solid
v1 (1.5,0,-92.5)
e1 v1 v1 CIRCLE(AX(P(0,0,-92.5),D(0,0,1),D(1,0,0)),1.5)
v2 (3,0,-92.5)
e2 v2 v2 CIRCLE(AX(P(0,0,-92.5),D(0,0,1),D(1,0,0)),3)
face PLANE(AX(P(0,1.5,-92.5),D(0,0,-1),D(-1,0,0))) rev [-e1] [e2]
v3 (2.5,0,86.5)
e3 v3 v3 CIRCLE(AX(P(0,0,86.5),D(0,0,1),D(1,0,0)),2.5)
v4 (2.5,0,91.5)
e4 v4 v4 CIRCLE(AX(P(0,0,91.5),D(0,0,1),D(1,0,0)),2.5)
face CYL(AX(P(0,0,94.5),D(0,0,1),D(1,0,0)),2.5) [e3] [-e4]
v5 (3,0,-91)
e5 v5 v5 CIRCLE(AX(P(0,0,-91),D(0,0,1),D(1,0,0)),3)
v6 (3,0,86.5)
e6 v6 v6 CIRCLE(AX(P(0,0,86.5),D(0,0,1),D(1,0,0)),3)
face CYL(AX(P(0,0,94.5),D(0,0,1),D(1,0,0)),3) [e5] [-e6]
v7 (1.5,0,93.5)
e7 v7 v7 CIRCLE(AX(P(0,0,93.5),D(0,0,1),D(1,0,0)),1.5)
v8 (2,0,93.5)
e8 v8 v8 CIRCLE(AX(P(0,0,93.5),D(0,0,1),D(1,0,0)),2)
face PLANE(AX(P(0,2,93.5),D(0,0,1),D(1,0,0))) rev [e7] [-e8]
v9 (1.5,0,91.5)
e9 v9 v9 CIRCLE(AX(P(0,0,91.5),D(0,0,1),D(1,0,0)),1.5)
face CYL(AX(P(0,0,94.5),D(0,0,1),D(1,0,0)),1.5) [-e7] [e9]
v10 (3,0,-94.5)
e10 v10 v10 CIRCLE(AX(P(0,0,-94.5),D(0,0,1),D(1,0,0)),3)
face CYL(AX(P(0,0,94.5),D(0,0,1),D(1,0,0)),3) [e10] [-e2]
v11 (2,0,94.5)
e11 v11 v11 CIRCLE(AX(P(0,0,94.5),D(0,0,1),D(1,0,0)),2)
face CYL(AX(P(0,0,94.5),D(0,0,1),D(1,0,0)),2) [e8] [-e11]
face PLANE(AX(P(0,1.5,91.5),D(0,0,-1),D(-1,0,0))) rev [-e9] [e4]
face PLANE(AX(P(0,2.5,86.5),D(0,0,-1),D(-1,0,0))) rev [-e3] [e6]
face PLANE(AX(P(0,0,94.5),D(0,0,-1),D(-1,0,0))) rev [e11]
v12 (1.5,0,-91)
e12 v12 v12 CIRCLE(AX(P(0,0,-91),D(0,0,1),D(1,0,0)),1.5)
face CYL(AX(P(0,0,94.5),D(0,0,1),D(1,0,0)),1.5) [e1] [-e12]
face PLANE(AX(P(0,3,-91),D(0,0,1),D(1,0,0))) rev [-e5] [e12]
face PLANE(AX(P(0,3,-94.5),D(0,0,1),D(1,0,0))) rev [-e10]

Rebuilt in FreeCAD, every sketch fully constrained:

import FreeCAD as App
import Part
import Sketcher

V = App.Vector
Q = App.Units.Quantity

doc = App.newDocument("Part")
body = doc.addObject("PartDesign::Body", "Body")

# Sketch on YZ plane
sketch1 = doc.addObject("Sketcher::SketchObject", "Sketch")
body.addObject(sketch1)
sketch1.AttachmentSupport = (doc.YZ_Plane, [""])
sketch1.MapMode = "FlatFace"
sketch1.addGeometry([
    Part.LineSegment(V(2, 94.5, 0), V(0, 94.5, 0)),  # 0
    Part.LineSegment(V(0, 94.5, 0), V(0, -94.5, 0)),  # 1
    Part.LineSegment(V(0, -94.5, 0), V(3, -94.5, 0)),  # 2
    Part.LineSegment(V(3, -94.5, 0), V(3, -92.5, 0)),  # 3
    Part.LineSegment(V(3, -92.5, 0), V(1.5, -92.5, 0)),  # 4
    Part.LineSegment(V(1.5, -92.5, 0), V(1.5, -91, 0)),  # 5
    Part.LineSegment(V(1.5, -91, 0), V(3, -91, 0)),  # 6
    Part.LineSegment(V(3, -91, 0), V(3, 86.5, 0)),  # 7
    Part.LineSegment(V(3, 86.5, 0), V(2.5, 86.5, 0)),  # 8
    Part.LineSegment(V(2.5, 86.5, 0), V(2.5, 91.5, 0)),  # 9
    Part.LineSegment(V(2.5, 91.5, 0), V(1.5, 91.5, 0)),  # 10
    Part.LineSegment(V(1.5, 91.5, 0), V(1.5, 93.5, 0)),  # 11
    Part.LineSegment(V(1.5, 93.5, 0), V(2, 93.5, 0)),  # 12
    Part.LineSegment(V(2, 93.5, 0), V(2, 94.5, 0)),  # 13
], False)
sketch1.addConstraint([
    Sketcher.Constraint("Coincident", 0, 2, 1, 1),
    Sketcher.Constraint("Coincident", 1, 2, 2, 1),
    Sketcher.Constraint("Coincident", 2, 2, 3, 1),
    Sketcher.Constraint("Coincident", 3, 2, 4, 1),
    Sketcher.Constraint("Coincident", 4, 2, 5, 1),
    Sketcher.Constraint("Coincident", 5, 2, 6, 1),
    Sketcher.Constraint("Coincident", 6, 2, 7, 1),
    Sketcher.Constraint("Coincident", 7, 2, 8, 1),
    Sketcher.Constraint("Coincident", 8, 2, 9, 1),
    Sketcher.Constraint("Coincident", 9, 2, 10, 1),
    Sketcher.Constraint("Coincident", 10, 2, 11, 1),
    Sketcher.Constraint("Coincident", 11, 2, 12, 1),
    Sketcher.Constraint("Coincident", 12, 2, 13, 1),
    Sketcher.Constraint("Coincident", 13, 2, 0, 1),
    Sketcher.Constraint("Horizontal", 0),
    Sketcher.Constraint("Vertical", 1),
    Sketcher.Constraint("Horizontal", 2),
    Sketcher.Constraint("Vertical", 3),
    Sketcher.Constraint("Horizontal", 4),
    Sketcher.Constraint("Vertical", 5),
    Sketcher.Constraint("Horizontal", 6),
    Sketcher.Constraint("Vertical", 7),
    Sketcher.Constraint("Horizontal", 8),
    Sketcher.Constraint("Vertical", 9),
    Sketcher.Constraint("Horizontal", 10),
    Sketcher.Constraint("Vertical", 11),
    Sketcher.Constraint("Horizontal", 12),
    Sketcher.Constraint("Vertical", 13),
    Sketcher.Constraint("Symmetric", 0, 2, 1, 2, -1, 1),
    Sketcher.Constraint("Vertical", 3, 2, 6, 2),
    Sketcher.Constraint("Vertical", 5, 2, 10, 2),
    Sketcher.Constraint("Equal", 8, 12),
    Sketcher.Constraint("Equal", 0, 3),
    Sketcher.Constraint("Equal", 6, 5),
    Sketcher.Constraint("Equal", 3, 11),
    Sketcher.Constraint("Equal", 10, 13),
    Sketcher.Constraint("DistanceX", 0, 2, 0, 1, Q("2 mm")),
    Sketcher.Constraint("DistanceX", 2, 1, 2, 2, Q("3 mm")),
    Sketcher.Constraint("DistanceY", 1, 2, 1, 1, Q("189 mm")),
    Sketcher.Constraint("DistanceY", 9, 1, 9, 2, Q("5 mm")),
    Sketcher.Constraint("DistanceX", 4, 2, 4, 1, Q("1.5 mm")),
])
revolution = doc.addObject("PartDesign::Revolution", "Revolution")
body.addObject(revolution)
revolution.Profile = sketch1
revolution.ReferenceAxis = (sketch1, ["V_Axis"])
revolution.Angle = 360

doc.recompute()
